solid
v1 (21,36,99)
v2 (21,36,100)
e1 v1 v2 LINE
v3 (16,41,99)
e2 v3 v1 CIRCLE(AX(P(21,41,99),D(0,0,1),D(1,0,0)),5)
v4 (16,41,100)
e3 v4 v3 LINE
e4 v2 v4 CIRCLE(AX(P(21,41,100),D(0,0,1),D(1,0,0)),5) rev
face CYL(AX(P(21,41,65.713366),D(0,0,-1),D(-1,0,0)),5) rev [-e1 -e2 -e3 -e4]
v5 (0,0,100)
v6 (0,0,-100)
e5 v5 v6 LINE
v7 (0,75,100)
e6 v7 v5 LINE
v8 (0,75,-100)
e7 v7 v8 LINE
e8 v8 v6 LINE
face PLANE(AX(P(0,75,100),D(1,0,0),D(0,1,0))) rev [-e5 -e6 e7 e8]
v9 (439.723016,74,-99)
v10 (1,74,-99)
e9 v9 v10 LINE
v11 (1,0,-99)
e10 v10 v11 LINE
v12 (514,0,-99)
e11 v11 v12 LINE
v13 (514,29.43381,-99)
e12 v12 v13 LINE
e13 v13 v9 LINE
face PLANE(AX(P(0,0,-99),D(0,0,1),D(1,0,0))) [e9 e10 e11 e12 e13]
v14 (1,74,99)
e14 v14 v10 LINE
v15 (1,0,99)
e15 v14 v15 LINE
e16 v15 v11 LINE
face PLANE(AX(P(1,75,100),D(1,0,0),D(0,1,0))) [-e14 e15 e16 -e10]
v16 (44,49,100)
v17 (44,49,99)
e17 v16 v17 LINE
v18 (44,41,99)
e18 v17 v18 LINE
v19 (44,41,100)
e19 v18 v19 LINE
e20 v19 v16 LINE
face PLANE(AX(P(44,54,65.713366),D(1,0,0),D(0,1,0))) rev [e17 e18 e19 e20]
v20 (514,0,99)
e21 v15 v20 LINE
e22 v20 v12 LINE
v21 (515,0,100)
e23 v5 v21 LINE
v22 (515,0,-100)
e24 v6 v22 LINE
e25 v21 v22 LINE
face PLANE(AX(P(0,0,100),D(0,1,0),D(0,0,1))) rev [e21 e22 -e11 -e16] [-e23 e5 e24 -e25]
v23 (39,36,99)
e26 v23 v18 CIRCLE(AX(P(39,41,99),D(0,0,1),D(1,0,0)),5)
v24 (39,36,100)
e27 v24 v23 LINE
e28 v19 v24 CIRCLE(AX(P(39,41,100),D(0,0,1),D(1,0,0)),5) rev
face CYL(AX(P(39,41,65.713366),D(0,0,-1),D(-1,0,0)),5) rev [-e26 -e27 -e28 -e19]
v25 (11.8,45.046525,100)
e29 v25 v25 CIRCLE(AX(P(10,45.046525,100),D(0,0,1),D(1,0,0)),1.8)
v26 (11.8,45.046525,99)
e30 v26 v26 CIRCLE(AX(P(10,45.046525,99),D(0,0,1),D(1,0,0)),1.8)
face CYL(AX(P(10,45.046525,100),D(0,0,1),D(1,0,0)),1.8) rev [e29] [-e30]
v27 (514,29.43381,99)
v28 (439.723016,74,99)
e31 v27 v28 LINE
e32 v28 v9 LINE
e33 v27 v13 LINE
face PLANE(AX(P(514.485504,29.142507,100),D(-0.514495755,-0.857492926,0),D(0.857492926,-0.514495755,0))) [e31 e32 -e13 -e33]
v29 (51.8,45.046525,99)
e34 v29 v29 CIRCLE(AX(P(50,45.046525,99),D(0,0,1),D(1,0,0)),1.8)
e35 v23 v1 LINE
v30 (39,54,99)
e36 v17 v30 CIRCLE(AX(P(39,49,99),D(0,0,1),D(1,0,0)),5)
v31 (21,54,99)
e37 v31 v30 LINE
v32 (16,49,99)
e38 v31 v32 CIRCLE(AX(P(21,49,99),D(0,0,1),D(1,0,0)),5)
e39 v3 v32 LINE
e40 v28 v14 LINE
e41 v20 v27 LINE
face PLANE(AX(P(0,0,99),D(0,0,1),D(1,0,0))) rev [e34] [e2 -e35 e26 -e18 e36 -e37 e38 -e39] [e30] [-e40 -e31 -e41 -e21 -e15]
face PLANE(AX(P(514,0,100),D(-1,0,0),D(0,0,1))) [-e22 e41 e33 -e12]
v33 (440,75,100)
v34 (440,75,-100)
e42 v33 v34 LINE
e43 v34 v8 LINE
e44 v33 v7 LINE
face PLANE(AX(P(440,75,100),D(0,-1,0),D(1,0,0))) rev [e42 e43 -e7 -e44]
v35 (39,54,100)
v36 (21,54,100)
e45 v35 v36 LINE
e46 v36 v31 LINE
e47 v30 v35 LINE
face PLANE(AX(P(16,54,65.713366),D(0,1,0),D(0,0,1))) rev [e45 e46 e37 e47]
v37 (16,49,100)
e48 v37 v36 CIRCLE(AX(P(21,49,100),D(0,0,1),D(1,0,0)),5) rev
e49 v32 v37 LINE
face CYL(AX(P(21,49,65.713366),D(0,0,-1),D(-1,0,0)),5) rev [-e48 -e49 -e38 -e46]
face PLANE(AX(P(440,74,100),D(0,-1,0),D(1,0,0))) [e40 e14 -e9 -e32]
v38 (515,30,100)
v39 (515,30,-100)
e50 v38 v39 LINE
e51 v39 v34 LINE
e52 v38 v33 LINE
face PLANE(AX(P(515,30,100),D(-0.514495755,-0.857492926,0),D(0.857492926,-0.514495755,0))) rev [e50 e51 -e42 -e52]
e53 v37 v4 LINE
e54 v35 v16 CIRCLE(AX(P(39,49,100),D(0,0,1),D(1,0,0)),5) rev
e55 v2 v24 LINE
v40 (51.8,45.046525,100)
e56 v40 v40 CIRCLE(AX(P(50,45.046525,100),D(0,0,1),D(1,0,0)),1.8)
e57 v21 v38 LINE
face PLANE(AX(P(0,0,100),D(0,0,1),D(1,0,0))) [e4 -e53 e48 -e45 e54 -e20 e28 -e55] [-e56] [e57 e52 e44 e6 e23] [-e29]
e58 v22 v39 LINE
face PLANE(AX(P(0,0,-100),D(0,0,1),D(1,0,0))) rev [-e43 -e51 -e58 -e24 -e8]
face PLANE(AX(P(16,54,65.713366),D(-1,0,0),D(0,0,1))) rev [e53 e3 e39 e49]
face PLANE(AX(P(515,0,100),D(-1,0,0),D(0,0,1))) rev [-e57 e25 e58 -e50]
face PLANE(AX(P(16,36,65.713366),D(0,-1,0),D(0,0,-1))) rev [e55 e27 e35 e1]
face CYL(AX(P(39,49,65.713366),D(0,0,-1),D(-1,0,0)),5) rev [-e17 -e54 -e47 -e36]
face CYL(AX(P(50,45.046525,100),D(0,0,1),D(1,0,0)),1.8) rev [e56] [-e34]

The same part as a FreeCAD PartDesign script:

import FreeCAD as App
import Part
import Sketcher

V = App.Vector


def edges_at(feature, points):
    """Names of the edges that pass closest to the given points."""
    edges = feature.Shape.Edges
    near = lambda p: min(range(len(edges)), key=lambda i: edges[i].distToShape(Part.Vertex(*p))[0])
    return sorted({f"Edge{near(p) + 1}" for p in points})


def faces_at(feature, points):
    """Names of the faces that lie closest to the given points."""
    faces = feature.Shape.Faces
    near = lambda p: min(range(len(faces)), key=lambda i: faces[i].distToShape(Part.Vertex(*p))[0])
    return sorted({f"Face{near(p) + 1}" for p in points})


def add_polygon(sketch, points):
    """Adds a closed chain of lines whose ends are joined by coincident constraints."""
    first, n = sketch.GeometryCount, len(points)
    for a, b in zip(points, points[1:] + points[:1]):
        sketch.addGeometry(Part.LineSegment(App.Vector(*a, 0), App.Vector(*b, 0)), False)
    for i in range(n):
        sketch.addConstraint(Sketcher.Constraint("Coincident", first + i, 2, first + (i + 1) % n, 1))

doc = App.newDocument("Part")
body = doc.addObject("PartDesign::Body", "Body")

# Sketch on XY plane
sketch1 = doc.addObject("Sketcher::SketchObject", "Sketch")
body.addObject(sketch1)
sketch1.AttachmentSupport = (doc.XY_Plane, [""])
sketch1.MapMode = "FlatFace"
add_polygon(sketch1, [(0, 0), (515, 0), (515, 30), (440, 75), (0, 75)])  # lines 0-4
sketch1.addConstraint([
    Sketcher.Constraint("Horizontal", 0),
    Sketcher.Constraint("Vertical", 1),
    Sketcher.Constraint("Horizontal", 3),
    Sketcher.Constraint("Vertical", 4),
    Sketcher.Constraint("Coincident", 4, 2, -1, 1),
    Sketcher.Constraint("DistanceX", 0, 1, 0, 2, 515.0),
    Sketcher.Constraint("DistanceX", 3, 2, 3, 1, 440.0),
    Sketcher.Constraint("DistanceY", 1, 1, 1, 2, 30.0),
    Sketcher.Constraint("DistanceY", 4, 2, 4, 1, 75.0),
])
pad1 = doc.addObject("PartDesign::Pad", "Pad")
body.addObject(pad1)
pad1.Profile = sketch1
pad1.Length = 200
pad1.Midplane = True
doc.recompute()

thickness = doc.addObject("PartDesign::Thickness", "Thickness")
body.addObject(thickness)
thickness.Base = (pad1, faces_at(pad1, [(257.5, 0, 0)]))
thickness.Value = 1
thickness.Reversed = True
thickness.Join = "Intersection"

# Sketch on XY plane
sketch2 = doc.addObject("Sketcher::SketchObject", "Sketch001")
body.addObject(sketch2)
sketch2.AttachmentSupport = (doc.XY_Plane, [""])
sketch2.MapMode = "FlatFace"
sketch2.AttachmentOffset = App.Placement(V(0, 0, 100), App.Rotation())
add_polygon(sketch2, [(16, 54), (16, 36), (44, 36), (44, 54)])  # lines 0-3
sketch2.addConstraint([
    Sketcher.Constraint("Vertical", 0),
    Sketcher.Constraint("Horizontal", 1),
    Sketcher.Constraint("Vertical", 2),
    Sketcher.Constraint("Horizontal", 3),
    Sketcher.Constraint("DistanceX", 1, 1, 1, 2, 28.0),
    Sketcher.Constraint("DistanceY", 0, 2, 0, 1, 18.0),
    Sketcher.Constraint("DistanceX", -1, 1, 0, 2, 16.0),
    Sketcher.Constraint("DistanceY", -1, 1, 0, 2, 36.0),
])
pocket1 = doc.addObject("PartDesign::Pocket", "Pocket")
body.addObject(pocket1)
pocket1.Profile = sketch2
pocket1.Length = 1
doc.recompute()

fillet = doc.addObject("PartDesign::Fillet", "Fillet")
body.addObject(fillet)
fillet.Base = (pocket1, edges_at(pocket1, [
    (16, 36, 99.5),
    (16, 54, 99.5),
    (44, 54, 99.5),
    (44, 36, 99.5),
]))
fillet.Radius = 5

# Sketch on XY plane
sketch3 = doc.addObject("Sketcher::SketchObject", "Sketch002")
body.addObject(sketch3)
sketch3.AttachmentSupport = (doc.XY_Plane, [""])
sketch3.MapMode = "FlatFace"
sketch3.AttachmentOffset = App.Placement(V(0, 0, 100), App.Rotation())
sketch3.addGeometry([
    Part.Circle(V(10, 45, 0), V(0, 0, 1), 1.8),
    Part.Circle(V(50, 45, 0), V(0, 0, 1), 1.8),
], False)
sketch3.addConstraint([
    Sketcher.Constraint("Equal", 0, 1),
    Sketcher.Constraint("Horizontal", 0, 3, 1, 3),
    Sketcher.Constraint("Diameter", 0, 3.6),
    Sketcher.Constraint("DistanceX", -1, 1, 0, 3, 10.0),
    Sketcher.Constraint("DistanceX", -1, 1, 1, 3, 50.0),
    Sketcher.Constraint("DistanceY", -1, 1, 0, 3, 45.046525),
])
doc.recompute()
hole = doc.addObject("PartDesign::Hole", "Hole")
body.addObject(hole)
hole.Profile = sketch3
hole.ThreadType = "None"
hole.Diameter = 3.6
hole.DepthType = "Dimension"
hole.Depth = 10
hole.DrillPoint = "Angled"
hole.DrillPointAngle = 118

doc.recompute()
